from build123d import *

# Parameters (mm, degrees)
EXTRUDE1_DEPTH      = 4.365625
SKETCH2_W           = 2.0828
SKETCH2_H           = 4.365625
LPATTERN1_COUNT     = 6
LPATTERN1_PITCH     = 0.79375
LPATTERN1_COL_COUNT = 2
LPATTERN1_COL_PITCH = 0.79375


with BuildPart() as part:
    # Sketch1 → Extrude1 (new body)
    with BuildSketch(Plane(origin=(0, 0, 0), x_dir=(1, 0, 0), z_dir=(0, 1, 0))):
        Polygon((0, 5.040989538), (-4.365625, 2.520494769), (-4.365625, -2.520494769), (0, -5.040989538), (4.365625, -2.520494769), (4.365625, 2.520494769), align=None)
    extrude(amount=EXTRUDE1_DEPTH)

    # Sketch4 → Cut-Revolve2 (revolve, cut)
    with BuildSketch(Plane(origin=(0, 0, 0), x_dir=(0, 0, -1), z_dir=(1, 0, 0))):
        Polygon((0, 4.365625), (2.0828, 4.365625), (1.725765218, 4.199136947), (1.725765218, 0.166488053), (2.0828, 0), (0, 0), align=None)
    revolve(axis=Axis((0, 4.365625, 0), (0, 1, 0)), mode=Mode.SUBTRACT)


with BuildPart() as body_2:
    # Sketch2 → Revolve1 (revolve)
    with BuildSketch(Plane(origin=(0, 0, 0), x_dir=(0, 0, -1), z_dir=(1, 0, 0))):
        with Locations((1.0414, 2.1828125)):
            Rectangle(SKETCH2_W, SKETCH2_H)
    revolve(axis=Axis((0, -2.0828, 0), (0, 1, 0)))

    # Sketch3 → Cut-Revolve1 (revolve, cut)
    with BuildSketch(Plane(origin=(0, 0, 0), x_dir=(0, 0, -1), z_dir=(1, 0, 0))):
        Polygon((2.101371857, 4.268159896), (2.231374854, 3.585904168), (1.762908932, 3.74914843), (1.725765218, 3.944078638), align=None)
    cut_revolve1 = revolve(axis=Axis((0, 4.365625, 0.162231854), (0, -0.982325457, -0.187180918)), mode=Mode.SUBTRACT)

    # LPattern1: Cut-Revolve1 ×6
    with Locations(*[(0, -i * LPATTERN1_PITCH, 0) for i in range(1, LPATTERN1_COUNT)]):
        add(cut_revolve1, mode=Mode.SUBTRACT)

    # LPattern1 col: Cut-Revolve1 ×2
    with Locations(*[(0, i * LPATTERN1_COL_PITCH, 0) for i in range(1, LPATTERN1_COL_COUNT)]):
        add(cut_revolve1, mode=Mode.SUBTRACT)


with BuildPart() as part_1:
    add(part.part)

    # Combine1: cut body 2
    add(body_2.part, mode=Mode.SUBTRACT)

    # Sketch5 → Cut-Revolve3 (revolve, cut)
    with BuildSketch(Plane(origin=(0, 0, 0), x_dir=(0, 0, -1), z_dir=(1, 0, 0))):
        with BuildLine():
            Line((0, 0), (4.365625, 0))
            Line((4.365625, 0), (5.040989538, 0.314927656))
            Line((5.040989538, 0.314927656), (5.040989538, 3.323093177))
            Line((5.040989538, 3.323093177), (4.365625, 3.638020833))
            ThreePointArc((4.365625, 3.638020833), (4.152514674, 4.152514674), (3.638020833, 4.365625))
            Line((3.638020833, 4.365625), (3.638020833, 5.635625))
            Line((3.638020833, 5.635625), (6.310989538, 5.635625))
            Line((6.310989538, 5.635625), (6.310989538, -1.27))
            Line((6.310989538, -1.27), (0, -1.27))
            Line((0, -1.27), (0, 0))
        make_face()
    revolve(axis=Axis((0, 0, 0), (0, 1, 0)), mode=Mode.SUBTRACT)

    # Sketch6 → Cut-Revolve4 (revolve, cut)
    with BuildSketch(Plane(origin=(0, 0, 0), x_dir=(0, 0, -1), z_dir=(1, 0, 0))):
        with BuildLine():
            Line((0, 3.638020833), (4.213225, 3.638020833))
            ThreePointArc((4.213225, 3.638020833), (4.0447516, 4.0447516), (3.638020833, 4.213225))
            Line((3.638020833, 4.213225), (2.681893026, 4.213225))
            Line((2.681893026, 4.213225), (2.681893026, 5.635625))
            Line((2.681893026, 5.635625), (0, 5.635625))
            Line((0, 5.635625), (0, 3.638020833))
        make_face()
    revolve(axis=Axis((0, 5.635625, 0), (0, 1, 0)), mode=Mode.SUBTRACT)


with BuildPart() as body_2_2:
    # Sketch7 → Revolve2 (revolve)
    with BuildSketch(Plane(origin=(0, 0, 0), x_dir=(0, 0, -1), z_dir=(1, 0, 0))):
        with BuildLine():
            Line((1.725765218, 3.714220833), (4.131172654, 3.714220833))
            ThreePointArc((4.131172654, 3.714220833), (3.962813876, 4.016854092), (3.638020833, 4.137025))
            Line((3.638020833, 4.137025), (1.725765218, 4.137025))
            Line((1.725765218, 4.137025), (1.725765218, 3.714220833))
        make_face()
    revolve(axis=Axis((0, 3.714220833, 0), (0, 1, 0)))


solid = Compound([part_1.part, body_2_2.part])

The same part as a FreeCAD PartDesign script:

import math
import FreeCAD as App
import Part
import Sketcher
Q = App.Units.Quantity


def add_polygon(sketch, points):
    """Adds a closed chain of lines whose ends are joined by coincident constraints."""
    first, n = sketch.GeometryCount, len(points)
    for a, b in zip(points, points[1:] + points[:1]):
        sketch.addGeometry(Part.LineSegment(App.Vector(*a, 0), App.Vector(*b, 0)), False)
    for i in range(n):
        sketch.addConstraint(Sketcher.Constraint("Coincident", first + i, 2, first + (i + 1) % n, 1))

doc = App.newDocument("Part")
body = doc.addObject("PartDesign::Body", "Body")

# Sketch on XZ plane
sketch1 = doc.addObject("Sketcher::SketchObject", "Sketch")
body.addObject(sketch1)
sketch1.AttachmentSupport = (doc.XZ_Plane, [""])
sketch1.MapMode = "FlatFace"
add_polygon(sketch1, [(0, -5), (-4, -3), (-4, 3), (0, 5), (4, 3), (4, -3)])  # lines 0-5
sketch1.addConstraint([
    Sketcher.Constraint("Vertical", 1),
    Sketcher.Constraint("Vertical", 4),
    Sketcher.Constraint("Symmetric", 0, 2, 3, 2, -1, 1),
    Sketcher.Constraint("Symmetric", 2, 2, 5, 2, -1, 1),
    Sketcher.Constraint("PointOnObject", 2, 2, -2),
    Sketcher.Constraint("Parallel", 2, 5),
    Sketcher.Constraint("Horizontal", 1, 2, 3, 2),
    Sketcher.Constraint("Angle", 0, Q("150 deg")),
    Sketcher.Constraint("DistanceX", 0, 2, -1, 1, Q("0.171875 in")),
    Sketcher.Constraint("DistanceY", 1, 1, 1, 2, Q("5.04099 mm")),
])
pad1 = doc.addObject("PartDesign::Pad", "Pad")
body.addObject(pad1)
pad1.Profile = sketch1
pad1.Length = Q("0.171875 in")
pad1.Reversed = True

# Sketch on YZ plane
sketch2 = doc.addObject("Sketcher::SketchObject", "Sketch001")
body.addObject(sketch2)
sketch2.AttachmentSupport = (doc.YZ_Plane, [""])
sketch2.MapMode = "FlatFace"
add_polygon(sketch2, [(4.37, -2.08), (4.37, 0), (0, 0), (0, -2.08), (0.17, -1.73), (4.2, -1.73)])  # lines 0-5
sketch2.addConstraint([
    Sketcher.Constraint("Vertical", 0),
    Sketcher.Constraint("Horizontal", 1),
    Sketcher.Constraint("Vertical", 2),
    Sketcher.Constraint("Horizontal", 4),
    Sketcher.Constraint("Coincident", 1, 2, -1, 1),
    Sketcher.Constraint("Horizontal", 2, 2, 5, 2),
    Sketcher.Constraint("Equal", 3, 5),
    Sketcher.Constraint("Angle", 3, Q("65 deg")),
    Sketcher.Constraint("DistanceX", 1, 2, 1, 1, Q("0.171875 in")),
    Sketcher.Constraint("DistanceY", 0, 1, 0, 2, Q("0.082 in")),
    Sketcher.Constraint("DistanceX", 4, 1, 4, 2, Q("4.032649 mm")),
])
groove = doc.addObject("PartDesign::Groove", "Groove")
body.addObject(groove)
groove.Profile = sketch2
groove.ReferenceAxis = (sketch2, ["H_Axis"])
groove.Angle = 360
body2 = doc.addObject("PartDesign::Body", "Body001")

# Sketch on YZ plane
sketch3 = doc.addObject("Sketcher::SketchObject", "Sketch002")
body2.addObject(sketch3)
sketch3.AttachmentSupport = (doc.getObject("YZ_Plane001"), [""])
sketch3.MapMode = "FlatFace"
add_polygon(sketch3, [(4.4, 0), (0, 0), (0, -2.1), (4.4, -2.1)])  # lines 0-3
sketch3.addConstraint([
    Sketcher.Constraint("Horizontal", 0),
    Sketcher.Constraint("Vertical", 1),
    Sketcher.Constraint("Horizontal", 2),
    Sketcher.Constraint("Vertical", 3),
    Sketcher.Constraint("Coincident", 0, 2, -1, 1),
    Sketcher.Constraint("DistanceX", 0, 2, 0, 1, Q("0.171875 in")),
    Sketcher.Constraint("DistanceY", 1, 2, 1, 1, Q("0.082 in")),
])
revolution = doc.addObject("PartDesign::Revolution", "Revolution")
body2.addObject(revolution)
revolution.Profile = sketch3
revolution.ReferenceAxis = (sketch3, ["H_Axis"])
revolution.Angle = 360

# Sketch on YZ plane
sketch4 = doc.addObject("Sketcher::SketchObject", "Sketch003")
body2.addObject(sketch4)
sketch4.AttachmentSupport = (doc.getObject("YZ_Plane001"), [""])
sketch4.MapMode = "FlatFace"
add_polygon(sketch4, [(3.59, -2.23), (4.27, -2.1), (3.94, -1.73), (3.75, -1.76)])  # lines 0-3
sketch4.addGeometry(Part.LineSegment(App.Vector(3.86, 0.07, 0), App.Vector(3.17, -0.07, 0)), True)  # axis
sketch4.addConstraint([
    Sketcher.Constraint("Parallel", 0, 2),
    Sketcher.Constraint("Parallel", 2, 4),
    Sketcher.Constraint("Equal", 1, 3),
    Sketcher.Constraint("Equal", 0, 4),
    Sketcher.Constraint("DistanceY", -1, 1, 4, 1, Q("0.065001 mm")),
    Sketcher.Constraint("DistanceY", 4, 2, -1, 1, Q("0.065001 mm")),
    Sketcher.Constraint("DistanceX", 4, 1, 0, 2, Q("0.4128 mm")),
    Sketcher.Constraint("Distance", 0, Q("0.694531 mm")),
    Sketcher.Constraint("DistanceX", -1, 1, 0, 2, Q("4.26816 mm")),
    Sketcher.Constraint("DistanceY", 0, 2, -1, 1, Q("2.101372 mm")),
    Sketcher.Constraint("DistanceX", -1, 1, 1, 2, Q("3.944079 mm")),
    Sketcher.Constraint("DistanceX", -1, 1, 2, 2, Q("3.749148 mm")),
])
groove2 = doc.addObject("PartDesign::Groove", "Groove001")
body2.addObject(groove2)
groove2.Profile = sketch4
groove2.ReferenceAxis = (sketch4, ["Axis0"])
groove2.Angle = 360
doc.recompute()

linearpattern = doc.addObject("PartDesign::LinearPattern", "LinearPattern")
body2.addObject(linearpattern)
linearpattern.Originals = [groove2]
linearpattern.Direction = (doc.getObject("Y_Axis001"), [""])
linearpattern.Mode = "offset"
linearpattern.Offset = Q("0.03125 in")
linearpattern.Occurrences = 6
linearpattern.Reversed = True
body2.Tip = linearpattern
doc.recompute()

linearpattern2 = doc.addObject("PartDesign::LinearPattern", "LinearPattern001")
body2.addObject(linearpattern2)
linearpattern2.Originals = [groove2]
linearpattern2.Direction = (doc.getObject("Y_Axis001"), [""])
linearpattern2.Mode = "offset"
linearpattern2.Offset = Q("0.03125 in")
linearpattern2.Occurrences = 2
body2.Tip = linearpattern2
doc.recompute()

boolean = doc.addObject("PartDesign::Boolean", "Boolean")
body.addObject(boolean)
boolean.Type = "Cut"
boolean.addObjects([body2])

# Sketch on YZ plane
sketch5 = doc.addObject("Sketcher::SketchObject", "Sketch004")
body.addObject(sketch5)
sketch5.AttachmentSupport = (doc.YZ_Plane, [""])
sketch5.MapMode = "FlatFace"
sketch5.addGeometry([
    Part.LineSegment(App.Vector(0, -4.4, 0), App.Vector(0, 0, 0)),  # 0
    Part.LineSegment(App.Vector(0, 0, 0), App.Vector(-1.3, 0, 0)),  # 1
    Part.LineSegment(App.Vector(-1.3, 0, 0), App.Vector(-1.3, -6.3, 0)),  # 2
    Part.LineSegment(App.Vector(-1.3, -6.3, 0), App.Vector(5.6, -6.3, 0)),  # 3
    Part.LineSegment(App.Vector(5.6, -6.3, 0), App.Vector(5.6, -3.6, 0)),  # 4
    Part.LineSegment(App.Vector(5.6, -3.6, 0), App.Vector(4.4, -3.6, 0)),  # 5
    Part.ArcOfCircle(Part.Circle(App.Vector(3.6, -3.6, 0), App.Vector(0, 0, 1), 0.7), math.radians(-90), math.radians(0)),  # 6
    Part.LineSegment(App.Vector(3.6, -4.4, 0), App.Vector(3.3, -5, 0)),  # 7
    Part.LineSegment(App.Vector(3.3, -5, 0), App.Vector(0.3, -5, 0)),  # 8
    Part.LineSegment(App.Vector(0.3, -5, 0), App.Vector(0, -4.4, 0)),  # 9
], False)
sketch5.addConstraint([
    Sketcher.Constraint("Coincident", 0, 2, 1, 1),
    Sketcher.Constraint("Coincident", 1, 2, 2, 1),
    Sketcher.Constraint("Coincident", 2, 2, 3, 1),
    Sketcher.Constraint("Coincident", 3, 2, 4, 1),
    Sketcher.Constraint("Coincident", 4, 2, 5, 1),
    Sketcher.Constraint("Coincident", 5, 2, 6, 2),
    Sketcher.Constraint("Coincident", 6, 1, 7, 1),
    Sketcher.Constraint("Coincident", 7, 2, 8, 1),
    Sketcher.Constraint("Coincident", 8, 2, 9, 1),
    Sketcher.Constraint("Coincident", 9, 2, 0, 1),
    Sketcher.Constraint("Vertical", 0),
    Sketcher.Constraint("Horizontal", 1),
    Sketcher.Constraint("Vertical", 2),
    Sketcher.Constraint("Horizontal", 3),
    Sketcher.Constraint("Vertical", 4),
    Sketcher.Constraint("Horizontal", 5),
    Sketcher.Constraint("Horizontal", 8),
    Sketcher.Constraint("Coincident", 0, 2, -1, 1),
    Sketcher.Constraint("Horizontal", 6, 3, 4, 2),
    Sketcher.Constraint("Horizontal", 6, 1, 9, 2),
    Sketcher.Constraint("Equal", 1, 5),
    Sketcher.Constraint("Equal", 7, 9),
    Sketcher.Constraint("Angle", 7, Q("-115 deg")),
    Sketcher.Constraint("DistanceX", 1, 2, 1, 1, Q("0.05 in")),
    Sketcher.Constraint("DistanceY", 0, 1, 0, 2, Q("0.171875 in")),
    Sketcher.Constraint("DistanceY", 3, 2, 7, 2, Q("0.05 in")),
    Sketcher.Constraint("DistanceX", -1, 1, 5, 2, Q("0.171875 in")),
    Sketcher.Constraint("Radius", 6, Q("0.727604 mm")),
    Sketcher.Constraint("DistanceY", 2, 2, 2, 1, Q("6.31099 mm")),
    Sketcher.Constraint("DistanceX", 8, 2, 8, 1, Q("3.008166 mm")),
])
groove3 = doc.addObject("PartDesign::Groove", "Groove002")
body.addObject(groove3)
groove3.Profile = sketch5
groove3.ReferenceAxis = (sketch5, ["H_Axis"])
groove3.Angle = 360

# Sketch on YZ plane
sketch6 = doc.addObject("Sketcher::SketchObject", "Sketch005")
body.addObject(sketch6)
sketch6.AttachmentSupport = (doc.YZ_Plane, [""])
sketch6.MapMode = "FlatFace"
sketch6.addGeometry([
    Part.LineSegment(App.Vector(3.6, 0, 0), App.Vector(3.6, -4.2, 0)),  # 0
    Part.ArcOfCircle(Part.Circle(App.Vector(3.6, -3.6, 0), App.Vector(0, 0, 1), 0.6), math.radians(-90), math.radians(0)),  # 1
    Part.LineSegment(App.Vector(4.2, -3.6, 0), App.Vector(4.2, -2.7, 0)),  # 2
    Part.LineSegment(App.Vector(4.2, -2.7, 0), App.Vector(5.6, -2.7, 0)),  # 3
    Part.LineSegment(App.Vector(5.6, -2.7, 0), App.Vector(5.6, 0, 0)),  # 4
    Part.LineSegment(App.Vector(5.6, 0, 0), App.Vector(3.6, 0, 0)),  # 5
], False)
sketch6.addConstraint([
    Sketcher.Constraint("Coincident", 0, 2, 1, 1),
    Sketcher.Constraint("Tangent", 1, 2, 2, 1),
    Sketcher.Constraint("Coincident", 2, 2, 3, 1),
    Sketcher.Constraint("Coincident", 3, 2, 4, 1),
    Sketcher.Constraint("Coincident", 4, 2, 5, 1),
    Sketcher.Constraint("Coincident", 5, 2, 0, 1),
    Sketcher.Constraint("Vertical", 0),
    Sketcher.Constraint("Vertical", 2),
    Sketcher.Constraint("Horizontal", 3),
    Sketcher.Constraint("Vertical", 4),
    Sketcher.Constraint("Horizontal", 5),
    Sketcher.Constraint("PointOnObject", 4, 2, -1),
    Sketcher.Constraint("Vertical", 1, 3, 0, 2),
    Sketcher.Constraint("DistanceX", 3, 1, 3, 2, Q("0.056 in")),
    Sketcher.Constraint("Radius", 1, Q("0.575204 mm")),
    Sketcher.Constraint("DistanceY", 0, 2, 0, 1, Q("4.213225 mm")),
    Sketcher.Constraint("DistanceY", 2, 1, 2, 2, Q("0.956128 mm")),
    Sketcher.Constraint("DistanceX", -1, 1, 1, 3, Q("3.638021 mm")),
])
groove4 = doc.addObject("PartDesign::Groove", "Groove003")
body.addObject(groove4)
groove4.Profile = sketch6
groove4.ReferenceAxis = (sketch6, ["H_Axis"])
groove4.Angle = 360
body3 = doc.addObject("PartDesign::Body", "Body002")

# Sketch on YZ plane
sketch7 = doc.addObject("Sketcher::SketchObject", "Sketch006")
body3.addObject(sketch7)
sketch7.AttachmentSupport = (doc.getObject("YZ_Plane002"), [""])
sketch7.MapMode = "FlatFace"
sketch7.addGeometry([
    Part.LineSegment(App.Vector(3.71, -1.73, 0), App.Vector(3.71, -4.13, 0)),
    Part.ArcOfCircle(Part.Circle(App.Vector(3.64, -3.64, 0), App.Vector(0, 0, 1), 0.5), math.radians(-81), math.radians(0)),
    Part.LineSegment(App.Vector(4.14, -3.64, 0), App.Vector(4.14, -1.73, 0)),
    Part.LineSegment(App.Vector(4.14, -1.73, 0), App.Vector(3.71, -1.73, 0)),
], False)
sketch7.addConstraint([
    Sketcher.Constraint("Coincident", 0, 2, 1, 1),
    Sketcher.Constraint("Tangent", 1, 2, 2, 1),
    Sketcher.Constraint("Coincident", 2, 2, 3, 1),
    Sketcher.Constraint("Coincident", 3, 2, 0, 1),
    Sketcher.Constraint("Vertical", 0),
    Sketcher.Constraint("Vertical", 2),
    Sketcher.Constraint("Horizontal", 3),
    Sketcher.Constraint("DistanceX", 1, 3, 0, 2, Q("0.003 in")),
    Sketcher.Constraint("Radius", 1, Q("0.499004 mm")),
    Sketcher.Constraint("DistanceY", 0, 2, 0, 1, Q("2.405407 mm")),
    Sketcher.Constraint("DistanceX", -1, 1, 1, 3, Q("3.638021 mm")),
    Sketcher.Constraint("DistanceY", 1, 3, -1, 1, Q("3.638021 mm")),
])
revolution2 = doc.addObject("PartDesign::Revolution", "Revolution001")
body3.addObject(revolution2)
revolution2.Profile = sketch7
revolution2.ReferenceAxis = (sketch7, ["H_Axis"])
revolution2.Angle = 360

doc.recompute()
